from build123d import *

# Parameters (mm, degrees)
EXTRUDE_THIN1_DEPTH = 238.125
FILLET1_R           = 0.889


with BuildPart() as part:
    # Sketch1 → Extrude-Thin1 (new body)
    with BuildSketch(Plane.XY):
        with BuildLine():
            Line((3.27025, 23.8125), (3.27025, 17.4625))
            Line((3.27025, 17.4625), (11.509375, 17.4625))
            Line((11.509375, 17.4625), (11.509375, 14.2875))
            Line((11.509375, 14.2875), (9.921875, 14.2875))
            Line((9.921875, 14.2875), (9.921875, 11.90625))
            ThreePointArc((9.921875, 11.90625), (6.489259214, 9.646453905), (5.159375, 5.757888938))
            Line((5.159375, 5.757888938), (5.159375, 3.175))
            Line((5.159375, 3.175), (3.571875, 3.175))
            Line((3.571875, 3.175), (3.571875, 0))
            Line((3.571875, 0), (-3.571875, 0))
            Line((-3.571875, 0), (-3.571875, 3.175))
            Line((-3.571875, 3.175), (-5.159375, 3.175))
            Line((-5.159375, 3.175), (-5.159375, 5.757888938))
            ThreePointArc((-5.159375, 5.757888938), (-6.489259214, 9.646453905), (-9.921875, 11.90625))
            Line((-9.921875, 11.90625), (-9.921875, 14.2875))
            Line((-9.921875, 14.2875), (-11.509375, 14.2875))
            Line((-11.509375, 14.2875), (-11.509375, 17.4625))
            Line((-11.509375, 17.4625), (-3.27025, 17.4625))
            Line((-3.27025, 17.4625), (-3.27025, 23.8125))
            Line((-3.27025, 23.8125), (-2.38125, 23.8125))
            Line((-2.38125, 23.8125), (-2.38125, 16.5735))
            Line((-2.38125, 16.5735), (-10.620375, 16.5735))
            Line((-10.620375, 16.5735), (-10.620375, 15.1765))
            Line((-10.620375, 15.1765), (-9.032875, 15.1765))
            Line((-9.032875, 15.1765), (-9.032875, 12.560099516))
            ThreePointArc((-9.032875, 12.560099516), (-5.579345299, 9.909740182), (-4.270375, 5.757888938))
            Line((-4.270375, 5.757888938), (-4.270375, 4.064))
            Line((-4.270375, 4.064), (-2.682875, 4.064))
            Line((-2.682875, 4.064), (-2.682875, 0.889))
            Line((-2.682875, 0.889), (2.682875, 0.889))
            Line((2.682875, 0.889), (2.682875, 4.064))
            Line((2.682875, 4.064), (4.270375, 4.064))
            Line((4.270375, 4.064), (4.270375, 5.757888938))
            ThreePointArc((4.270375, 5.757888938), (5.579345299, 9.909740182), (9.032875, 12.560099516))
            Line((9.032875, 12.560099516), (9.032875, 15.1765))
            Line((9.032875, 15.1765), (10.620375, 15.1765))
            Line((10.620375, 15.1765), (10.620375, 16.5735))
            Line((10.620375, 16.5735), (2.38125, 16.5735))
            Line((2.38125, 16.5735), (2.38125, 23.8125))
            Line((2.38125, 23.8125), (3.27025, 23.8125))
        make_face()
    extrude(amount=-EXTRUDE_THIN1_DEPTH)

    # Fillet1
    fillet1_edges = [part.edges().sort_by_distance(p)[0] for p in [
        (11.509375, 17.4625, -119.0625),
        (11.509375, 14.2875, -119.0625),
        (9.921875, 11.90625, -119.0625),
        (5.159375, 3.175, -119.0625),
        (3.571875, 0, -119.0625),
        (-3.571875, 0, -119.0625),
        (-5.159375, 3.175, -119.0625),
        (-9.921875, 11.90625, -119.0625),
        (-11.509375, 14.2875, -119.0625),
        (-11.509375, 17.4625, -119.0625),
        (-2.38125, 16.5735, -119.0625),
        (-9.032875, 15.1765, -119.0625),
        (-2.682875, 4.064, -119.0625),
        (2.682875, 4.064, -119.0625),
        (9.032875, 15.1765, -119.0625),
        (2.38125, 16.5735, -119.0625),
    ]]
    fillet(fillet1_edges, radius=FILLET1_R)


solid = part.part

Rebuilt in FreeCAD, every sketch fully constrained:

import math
import FreeCAD as App
import Part
import Sketcher
Q = App.Units.Quantity


def edges_at(feature, points):
    """Names of the edges that pass closest to the given points."""
    edges = feature.Shape.Edges
    near = lambda p: min(range(len(edges)), key=lambda i: edges[i].distToShape(Part.Vertex(*p))[0])
    return sorted({f"Edge{near(p) + 1}" for p in points})

doc = App.newDocument("Part")
params = doc.addObject("Spreadsheet::Sheet", "Params")
for row, (alias, value) in enumerate([
    ("sketch1_radius", "0.25 in"),
    ("sketch1_radius2", "0.285 in"),
    ("sketch1_height", "0.25 in"),
    ("sketch1_width", "0.035 in"),
    ("sketch1_width2", "0.0625 in"),
    ("pad1_length", "9.375 in"),
    ("fillet_radius", "0.035 in"),
], start=1):
    params.set(f"A{row}", alias)
    params.set(f"B{row}", "=" + value)
    params.setAlias(f"B{row}", alias)

body = doc.addObject("PartDesign::Body", "Body")

# Sketch on XY plane
sketch1 = body.newObject("Sketcher::SketchObject", "Sketch")
sketch1.AttachmentSupport = (doc.getObject("XY_Plane"), [""])
sketch1.MapMode = "FlatFace"
sketch1.addGeometry([
    Part.LineSegment(App.Vector(3.3, 17.5, 0), App.Vector(3.3, 23.8, 0)),  # 0
    Part.LineSegment(App.Vector(3.3, 23.8, 0), App.Vector(2.4, 23.8, 0)),  # 1
    Part.LineSegment(App.Vector(2.4, 23.8, 0), App.Vector(2.4, 16.6, 0)),  # 2
    Part.LineSegment(App.Vector(2.4, 16.6, 0), App.Vector(10.6, 16.6, 0)),  # 3
    Part.LineSegment(App.Vector(10.6, 16.6, 0), App.Vector(10.6, 15.2, 0)),  # 4
    Part.LineSegment(App.Vector(10.6, 15.2, 0), App.Vector(9, 15.2, 0)),  # 5
    Part.LineSegment(App.Vector(9, 15.2, 0), App.Vector(9, 12.6, 0)),  # 6
    Part.ArcOfCircle(Part.Circle(App.Vector(11.5, 5.8, 0), App.Vector(0, 0, 1), 7.2), math.radians(110), math.radians(180)),  # 7
    Part.LineSegment(App.Vector(4.3, 5.8, 0), App.Vector(4.3, 4.1, 0)),  # 8
    Part.LineSegment(App.Vector(4.3, 4.1, 0), App.Vector(2.7, 4.1, 0)),  # 9
    Part.LineSegment(App.Vector(2.7, 4.1, 0), App.Vector(2.7, 0.9, 0)),  # 10
    Part.LineSegment(App.Vector(2.7, 0.9, 0), App.Vector(-2.7, 0.9, 0)),  # 11
    Part.LineSegment(App.Vector(-2.7, 0.9, 0), App.Vector(-2.7, 4.1, 0)),  # 12
    Part.LineSegment(App.Vector(-2.7, 4.1, 0), App.Vector(-4.3, 4.1, 0)),  # 13
    Part.LineSegment(App.Vector(-4.3, 4.1, 0), App.Vector(-4.3, 5.8, 0)),  # 14
    Part.ArcOfCircle(Part.Circle(App.Vector(-11.5, 5.8, 0), App.Vector(0, 0, 1), 7.2), math.radians(0), math.radians(70)),  # 15
    Part.LineSegment(App.Vector(-9, 12.6, 0), App.Vector(-9, 15.2, 0)),  # 16
    Part.LineSegment(App.Vector(-9, 15.2, 0), App.Vector(-10.6, 15.2, 0)),  # 17
    Part.LineSegment(App.Vector(-10.6, 15.2, 0), App.Vector(-10.6, 16.6, 0)),  # 18
    Part.LineSegment(App.Vector(-10.6, 16.6, 0), App.Vector(-2.4, 16.6, 0)),  # 19
    Part.LineSegment(App.Vector(-2.4, 16.6, 0), App.Vector(-2.4, 23.8, 0)),  # 20
    Part.LineSegment(App.Vector(-2.4, 23.8, 0), App.Vector(-3.3, 23.8, 0)),  # 21
    Part.LineSegment(App.Vector(-3.3, 23.8, 0), App.Vector(-3.3, 17.5, 0)),  # 22
    Part.LineSegment(App.Vector(-3.3, 17.5, 0), App.Vector(-11.5, 17.5, 0)),  # 23
    Part.LineSegment(App.Vector(-11.5, 17.5, 0), App.Vector(-11.5, 14.3, 0)),  # 24
    Part.LineSegment(App.Vector(-11.5, 14.3, 0), App.Vector(-9.9, 14.3, 0)),  # 25
    Part.LineSegment(App.Vector(-9.9, 14.3, 0), App.Vector(-9.9, 11.9, 0)),  # 26
    Part.ArcOfCircle(Part.Circle(App.Vector(-11.5, 5.8, 0), App.Vector(0, 0, 1), 6.3), math.radians(0), math.radians(76)),  # 27
    Part.LineSegment(App.Vector(-5.2, 5.8, 0), App.Vector(-5.2, 3.2, 0)),  # 28
    Part.LineSegment(App.Vector(-5.2, 3.2, 0), App.Vector(-3.6, 3.2, 0)),  # 29
    Part.LineSegment(App.Vector(-3.6, 3.2, 0), App.Vector(-3.6, 0, 0)),  # 30
    Part.LineSegment(App.Vector(-3.6, 0, 0), App.Vector(3.6, 0, 0)),  # 31
    Part.LineSegment(App.Vector(3.6, 0, 0), App.Vector(3.6, 3.2, 0)),  # 32
    Part.LineSegment(App.Vector(3.6, 3.2, 0), App.Vector(5.2, 3.2, 0)),  # 33
    Part.LineSegment(App.Vector(5.2, 3.2, 0), App.Vector(5.2, 5.8, 0)),  # 34
    Part.ArcOfCircle(Part.Circle(App.Vector(11.5, 5.8, 0), App.Vector(0, 0, 1), 6.3), math.radians(104), math.radians(180)),  # 35
    Part.LineSegment(App.Vector(9.9, 11.9, 0), App.Vector(9.9, 14.3, 0)),  # 36
    Part.LineSegment(App.Vector(9.9, 14.3, 0), App.Vector(11.5, 14.3, 0)),  # 37
    Part.LineSegment(App.Vector(11.5, 14.3, 0), App.Vector(11.5, 17.5, 0)),  # 38
    Part.LineSegment(App.Vector(11.5, 17.5, 0), App.Vector(3.3, 17.5, 0)),  # 39
], False)
sketch1.addConstraint([
    Sketcher.Constraint("Coincident", 0, 2, 1, 1),
    Sketcher.Constraint("Coincident", 1, 2, 2, 1),
    Sketcher.Constraint("Coincident", 2, 2, 3, 1),
    Sketcher.Constraint("Coincident", 3, 2, 4, 1),
    Sketcher.Constraint("Coincident", 4, 2, 5, 1),
    Sketcher.Constraint("Coincident", 5, 2, 6, 1),
    Sketcher.Constraint("Coincident", 6, 2, 7, 1),
    Sketcher.Constraint("Tangent", 7, 2, 8, 1),
    Sketcher.Constraint("Coincident", 8, 2, 9, 1),
    Sketcher.Constraint("Coincident", 9, 2, 10, 1),
    Sketcher.Constraint("Coincident", 10, 2, 11, 1),
    Sketcher.Constraint("Coincident", 11, 2, 12, 1),
    Sketcher.Constraint("Coincident", 12, 2, 13, 1),
    Sketcher.Constraint("Coincident", 13, 2, 14, 1),
    Sketcher.Constraint("Tangent", 14, 2, 15, 1),
    Sketcher.Constraint("Coincident", 15, 2, 16, 1),
    Sketcher.Constraint("Coincident", 16, 2, 17, 1),
    Sketcher.Constraint("Coincident", 17, 2, 18, 1),
    Sketcher.Constraint("Coincident", 18, 2, 19, 1),
    Sketcher.Constraint("Coincident", 19, 2, 20, 1),
    Sketcher.Constraint("Coincident", 20, 2, 21, 1),
    Sketcher.Constraint("Coincident", 21, 2, 22, 1),
    Sketcher.Constraint("Coincident", 22, 2, 23, 1),
    Sketcher.Constraint("Coincident", 23, 2, 24, 1),
    Sketcher.Constraint("Coincident", 24, 2, 25, 1),
    Sketcher.Constraint("Coincident", 25, 2, 26, 1),
    Sketcher.Constraint("Coincident", 26, 2, 27, 2),
    Sketcher.Constraint("Tangent", 27, 1, 28, 1),
    Sketcher.Constraint("Coincident", 28, 2, 29, 1),
    Sketcher.Constraint("Coincident", 29, 2, 30, 1),
    Sketcher.Constraint("Coincident", 30, 2, 31, 1),
    Sketcher.Constraint("Coincident", 31, 2, 32, 1),
    Sketcher.Constraint("Coincident", 32, 2, 33, 1),
    Sketcher.Constraint("Coincident", 33, 2, 34, 1),
    Sketcher.Constraint("Tangent", 34, 2, 35, 2),
    Sketcher.Constraint("Coincident", 35, 1, 36, 1),
    Sketcher.Constraint("Coincident", 36, 2, 37, 1),
    Sketcher.Constraint("Coincident", 37, 2, 38, 1),
    Sketcher.Constraint("Coincident", 38, 2, 39, 1),
    Sketcher.Constraint("Coincident", 39, 2, 0, 1),
    Sketcher.Constraint("Vertical", 0),
    Sketcher.Constraint("Horizontal", 1),
    Sketcher.Constraint("Vertical", 2),
    Sketcher.Constraint("Horizontal", 3),
    Sketcher.Constraint("Vertical", 4),
    Sketcher.Constraint("Horizontal", 5),
    Sketcher.Constraint("Vertical", 6),
    Sketcher.Constraint("Vertical", 8),
    Sketcher.Constraint("Horizontal", 9),
    Sketcher.Constraint("Vertical", 10),
    Sketcher.Constraint("Horizontal", 11),
    Sketcher.Constraint("Vertical", 12),
    Sketcher.Constraint("Horizontal", 13),
    Sketcher.Constraint("Vertical", 14),
    Sketcher.Constraint("Vertical", 16),
    Sketcher.Constraint("Horizontal", 17),
    Sketcher.Constraint("Vertical", 18),
    Sketcher.Constraint("Horizontal", 19),
    Sketcher.Constraint("Vertical", 20),
    Sketcher.Constraint("Horizontal", 21),
    Sketcher.Constraint("Vertical", 22),
    Sketcher.Constraint("Horizontal", 23),
    Sketcher.Constraint("Vertical", 24),
    Sketcher.Constraint("Horizontal", 25),
    Sketcher.Constraint("Vertical", 26),
    Sketcher.Constraint("Vertical", 28),
    Sketcher.Constraint("Horizontal", 29),
    Sketcher.Constraint("Vertical", 30),
    Sketcher.Constraint("Horizontal", 31),
    Sketcher.Constraint("Vertical", 32),
    Sketcher.Constraint("Horizontal", 33),
    Sketcher.Constraint("Vertical", 34),
    Sketcher.Constraint("Vertical", 36),
    Sketcher.Constraint("Horizontal", 37),
    Sketcher.Constraint("Vertical", 38),
    Sketcher.Constraint("Horizontal", 39),
    Sketcher.Constraint("Coincident", 27, 3, 15, 3),
    Sketcher.Constraint("Coincident", 35, 3, 7, 3),
    Sketcher.Constraint("Equal", 7, 15),
    Sketcher.Constraint("Equal", 27, 35),
    Sketcher.Constraint("Symmetric", 30, 2, 31, 2, -1, 1),
    Sketcher.Constraint("Symmetric", 7, 3, 15, 3, -2),
    Sketcher.Constraint("Symmetric", 9, 2, 12, 2, -2),
    Sketcher.Constraint("Symmetric", 5, 2, 16, 2, -2),
    Sketcher.Constraint("Symmetric", 3, 2, 18, 2, -2),
    Sketcher.Constraint("Symmetric", 1, 2, 20, 2, -2),
    Sketcher.Constraint("Symmetric", 25, 2, 36, 2, -2),
    Sketcher.Constraint("Symmetric", 23, 2, 38, 2, -2),
    Sketcher.Constraint("Horizontal", 29, 2, 32, 2),
    Sketcher.Constraint("Vertical", 27, 3, 23, 2),
    Sketcher.Constraint("Equal", 5, 9),
    Sketcher.Constraint("Equal", 1, 21),
    Sketcher.Constraint("Equal", 19, 23),
    Sketcher.Constraint("Equal", 17, 25),
    Sketcher.Constraint("Equal", 25, 29),
    Sketcher.Constraint("Equal", 12, 24),
    Sketcher.Constraint("Equal", 24, 30),
    Sketcher.Constraint("Radius", 27, Q("0.25 in")),
    Sketcher.Constraint("Radius", 7, Q("0.285 in")),
    Sketcher.Constraint("DistanceY", 0, 1, 0, 2, Q("0.25 in")),
    Sketcher.Constraint("DistanceX", 1, 2, 1, 1, Q("0.035 in")),
    Sketcher.Constraint("DistanceX", 5, 2, 5, 1, Q("0.0625 in")),
    Sketcher.Constraint("DistanceX", 31, 1, 31, 2, Q("0.28125 in")),
    Sketcher.Constraint("DistanceY", 2, 2, 2, 1, Q("0.285 in")),
    Sketcher.Constraint("DistanceY", 4, 2, 4, 1, Q("0.055 in")),
    Sketcher.Constraint("DistanceY", 10, 2, 10, 1, Q("0.125 in")),
    Sketcher.Constraint("DistanceY", 26, 2, 26, 1, Q("0.09375 in")),
    Sketcher.Constraint("DistanceY", -1, 1, 8, 2, Q("0.16 in")),
    Sketcher.Constraint("DistanceY", -1, 1, 0, 2, Q("0.9375 in")),
    Sketcher.Constraint("DistanceX", -1, 1, 1, 2, Q("0.09375 in")),
])
sketch1.setExpression("Constraints[97]", "Params.sketch1_radius")
sketch1.setExpression("Constraints[98]", "Params.sketch1_radius2")
sketch1.setExpression("Constraints[99]", "Params.sketch1_height")
sketch1.setExpression("Constraints[100]", "Params.sketch1_width")
sketch1.setExpression("Constraints[101]", "Params.sketch1_width2")
pad1 = body.newObject("PartDesign::Pad", "Pad")
pad1.Profile = sketch1
pad1.setExpression("Length", "Params.pad1_length")
pad1.Reversed = True
doc.recompute()

fillet = body.newObject("PartDesign::Fillet", "Fillet")
fillet.Base = (pad1, edges_at(pad1, [
    (11.509, 17.462, -119.062),
    (11.509, 14.287, -119.062),
    (9.922, 11.906, -119.062),
    (5.159, 3.175, -119.062),
    (3.572, 0, -119.062),
    (-3.572, 0, -119.062),
    (-5.159, 3.175, -119.062),
    (-9.922, 11.906, -119.062),
    (-11.509, 14.287, -119.062),
    (-11.509, 17.462, -119.062),
    (-2.381, 16.573, -119.062),
    (-9.033, 15.177, -119.062),
    (-2.683, 4.064, -119.062),
    (2.683, 4.064, -119.062),
    (9.033, 15.177, -119.062),
    (2.381, 16.573, -119.062),
]))
fillet.setExpression("Radius", "Params.fillet_radius")

doc.recompute()
